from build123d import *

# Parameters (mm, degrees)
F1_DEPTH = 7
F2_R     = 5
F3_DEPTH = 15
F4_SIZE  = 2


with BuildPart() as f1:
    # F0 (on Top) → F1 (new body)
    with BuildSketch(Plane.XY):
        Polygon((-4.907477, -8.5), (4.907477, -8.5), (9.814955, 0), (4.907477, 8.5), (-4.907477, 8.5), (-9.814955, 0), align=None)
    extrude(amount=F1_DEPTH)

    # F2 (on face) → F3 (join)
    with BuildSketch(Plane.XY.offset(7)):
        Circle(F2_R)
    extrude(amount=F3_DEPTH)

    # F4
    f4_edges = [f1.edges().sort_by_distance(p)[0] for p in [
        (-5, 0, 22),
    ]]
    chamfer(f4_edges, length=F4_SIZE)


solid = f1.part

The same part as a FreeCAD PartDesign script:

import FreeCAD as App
import Part
import Sketcher
Q = App.Units.Quantity


def edges_at(feature, points):
    """Names of the edges that pass closest to the given points."""
    edges = feature.Shape.Edges
    near = lambda p: min(range(len(edges)), key=lambda i: edges[i].distToShape(Part.Vertex(*p))[0])
    return sorted({f"Edge{near(p) + 1}" for p in points})


def add_polygon(sketch, points):
    """Adds a closed chain of lines whose ends are joined by coincident constraints."""
    first, n = sketch.GeometryCount, len(points)
    for a, b in zip(points, points[1:] + points[:1]):
        sketch.addGeometry(Part.LineSegment(App.Vector(*a, 0), App.Vector(*b, 0)), False)
    for i in range(n):
        sketch.addConstraint(Sketcher.Constraint("Coincident", first + i, 2, first + (i + 1) % n, 1))

doc = App.newDocument("Part")
body = doc.addObject("PartDesign::Body", "Body")

# Sketch on XY plane
sketch1 = body.newObject("Sketcher::SketchObject", "Sketch")
sketch1.AttachmentSupport = (doc.getObject("XY_Plane"), [""])
sketch1.MapMode = "FlatFace"
add_polygon(sketch1, [(-5, -8), (5, -8), (10, 0), (5, 8), (-5, 8), (-10, 0)])  # lines 0-5
sketch1.addConstraint(Sketcher.Constraint("Horizontal", 0))
sketch1.addConstraint(Sketcher.Constraint("Horizontal", 3))
sketch1.addConstraint(Sketcher.Constraint("Symmetric", 0, 2, 3, 2, -1, 1))
sketch1.addConstraint(Sketcher.Constraint("Symmetric", 1, 2, 4, 2, -1, 1))
sketch1.addConstraint(Sketcher.Constraint("PointOnObject", 1, 2, -1))
sketch1.addConstraint(Sketcher.Constraint("Parallel", 2, 5))
sketch1.addConstraint(Sketcher.Constraint("Vertical", 0, 2, 2, 2))
sketch1.addConstraint(Sketcher.Constraint("Angle", 1, Q("59.999996 deg")))
sketch1.addConstraint(Sketcher.Constraint("DistanceY", 0, 2, 2, 2, Q("17 mm")))
sketch1.addConstraint(Sketcher.Constraint("DistanceX", 0, 1, 0, 2, Q("9.814954 mm")))
pad1 = body.newObject("PartDesign::Pad", "Pad")
pad1.Profile = sketch1
pad1.Length = 7

# Sketch on XY plane
sketch2 = body.newObject("Sketcher::SketchObject", "Sketch001")
sketch2.AttachmentSupport = (doc.getObject("XY_Plane"), [""])
sketch2.MapMode = "FlatFace"
sketch2.AttachmentOffset = App.Placement(App.Vector(0, 0, 7), App.Rotation())
sketch2.addGeometry(Part.Circle(App.Vector(0, 0, 0), App.Vector(0, 0, 1), 5), False)
sketch2.addConstraint(Sketcher.Constraint("Coincident", 0, 3, -1, 1))
sketch2.addConstraint(Sketcher.Constraint("Diameter", 0, Q("10 mm")))
pad2 = body.newObject("PartDesign::Pad", "Pad001")
pad2.Profile = sketch2
pad2.Length = 15
doc.recompute()

chamfer = body.newObject("PartDesign::Chamfer", "Chamfer")
chamfer.Base = (pad2, edges_at(pad2, [(-5, 0, 22)]))
chamfer.Size = 2

doc.recompute()
